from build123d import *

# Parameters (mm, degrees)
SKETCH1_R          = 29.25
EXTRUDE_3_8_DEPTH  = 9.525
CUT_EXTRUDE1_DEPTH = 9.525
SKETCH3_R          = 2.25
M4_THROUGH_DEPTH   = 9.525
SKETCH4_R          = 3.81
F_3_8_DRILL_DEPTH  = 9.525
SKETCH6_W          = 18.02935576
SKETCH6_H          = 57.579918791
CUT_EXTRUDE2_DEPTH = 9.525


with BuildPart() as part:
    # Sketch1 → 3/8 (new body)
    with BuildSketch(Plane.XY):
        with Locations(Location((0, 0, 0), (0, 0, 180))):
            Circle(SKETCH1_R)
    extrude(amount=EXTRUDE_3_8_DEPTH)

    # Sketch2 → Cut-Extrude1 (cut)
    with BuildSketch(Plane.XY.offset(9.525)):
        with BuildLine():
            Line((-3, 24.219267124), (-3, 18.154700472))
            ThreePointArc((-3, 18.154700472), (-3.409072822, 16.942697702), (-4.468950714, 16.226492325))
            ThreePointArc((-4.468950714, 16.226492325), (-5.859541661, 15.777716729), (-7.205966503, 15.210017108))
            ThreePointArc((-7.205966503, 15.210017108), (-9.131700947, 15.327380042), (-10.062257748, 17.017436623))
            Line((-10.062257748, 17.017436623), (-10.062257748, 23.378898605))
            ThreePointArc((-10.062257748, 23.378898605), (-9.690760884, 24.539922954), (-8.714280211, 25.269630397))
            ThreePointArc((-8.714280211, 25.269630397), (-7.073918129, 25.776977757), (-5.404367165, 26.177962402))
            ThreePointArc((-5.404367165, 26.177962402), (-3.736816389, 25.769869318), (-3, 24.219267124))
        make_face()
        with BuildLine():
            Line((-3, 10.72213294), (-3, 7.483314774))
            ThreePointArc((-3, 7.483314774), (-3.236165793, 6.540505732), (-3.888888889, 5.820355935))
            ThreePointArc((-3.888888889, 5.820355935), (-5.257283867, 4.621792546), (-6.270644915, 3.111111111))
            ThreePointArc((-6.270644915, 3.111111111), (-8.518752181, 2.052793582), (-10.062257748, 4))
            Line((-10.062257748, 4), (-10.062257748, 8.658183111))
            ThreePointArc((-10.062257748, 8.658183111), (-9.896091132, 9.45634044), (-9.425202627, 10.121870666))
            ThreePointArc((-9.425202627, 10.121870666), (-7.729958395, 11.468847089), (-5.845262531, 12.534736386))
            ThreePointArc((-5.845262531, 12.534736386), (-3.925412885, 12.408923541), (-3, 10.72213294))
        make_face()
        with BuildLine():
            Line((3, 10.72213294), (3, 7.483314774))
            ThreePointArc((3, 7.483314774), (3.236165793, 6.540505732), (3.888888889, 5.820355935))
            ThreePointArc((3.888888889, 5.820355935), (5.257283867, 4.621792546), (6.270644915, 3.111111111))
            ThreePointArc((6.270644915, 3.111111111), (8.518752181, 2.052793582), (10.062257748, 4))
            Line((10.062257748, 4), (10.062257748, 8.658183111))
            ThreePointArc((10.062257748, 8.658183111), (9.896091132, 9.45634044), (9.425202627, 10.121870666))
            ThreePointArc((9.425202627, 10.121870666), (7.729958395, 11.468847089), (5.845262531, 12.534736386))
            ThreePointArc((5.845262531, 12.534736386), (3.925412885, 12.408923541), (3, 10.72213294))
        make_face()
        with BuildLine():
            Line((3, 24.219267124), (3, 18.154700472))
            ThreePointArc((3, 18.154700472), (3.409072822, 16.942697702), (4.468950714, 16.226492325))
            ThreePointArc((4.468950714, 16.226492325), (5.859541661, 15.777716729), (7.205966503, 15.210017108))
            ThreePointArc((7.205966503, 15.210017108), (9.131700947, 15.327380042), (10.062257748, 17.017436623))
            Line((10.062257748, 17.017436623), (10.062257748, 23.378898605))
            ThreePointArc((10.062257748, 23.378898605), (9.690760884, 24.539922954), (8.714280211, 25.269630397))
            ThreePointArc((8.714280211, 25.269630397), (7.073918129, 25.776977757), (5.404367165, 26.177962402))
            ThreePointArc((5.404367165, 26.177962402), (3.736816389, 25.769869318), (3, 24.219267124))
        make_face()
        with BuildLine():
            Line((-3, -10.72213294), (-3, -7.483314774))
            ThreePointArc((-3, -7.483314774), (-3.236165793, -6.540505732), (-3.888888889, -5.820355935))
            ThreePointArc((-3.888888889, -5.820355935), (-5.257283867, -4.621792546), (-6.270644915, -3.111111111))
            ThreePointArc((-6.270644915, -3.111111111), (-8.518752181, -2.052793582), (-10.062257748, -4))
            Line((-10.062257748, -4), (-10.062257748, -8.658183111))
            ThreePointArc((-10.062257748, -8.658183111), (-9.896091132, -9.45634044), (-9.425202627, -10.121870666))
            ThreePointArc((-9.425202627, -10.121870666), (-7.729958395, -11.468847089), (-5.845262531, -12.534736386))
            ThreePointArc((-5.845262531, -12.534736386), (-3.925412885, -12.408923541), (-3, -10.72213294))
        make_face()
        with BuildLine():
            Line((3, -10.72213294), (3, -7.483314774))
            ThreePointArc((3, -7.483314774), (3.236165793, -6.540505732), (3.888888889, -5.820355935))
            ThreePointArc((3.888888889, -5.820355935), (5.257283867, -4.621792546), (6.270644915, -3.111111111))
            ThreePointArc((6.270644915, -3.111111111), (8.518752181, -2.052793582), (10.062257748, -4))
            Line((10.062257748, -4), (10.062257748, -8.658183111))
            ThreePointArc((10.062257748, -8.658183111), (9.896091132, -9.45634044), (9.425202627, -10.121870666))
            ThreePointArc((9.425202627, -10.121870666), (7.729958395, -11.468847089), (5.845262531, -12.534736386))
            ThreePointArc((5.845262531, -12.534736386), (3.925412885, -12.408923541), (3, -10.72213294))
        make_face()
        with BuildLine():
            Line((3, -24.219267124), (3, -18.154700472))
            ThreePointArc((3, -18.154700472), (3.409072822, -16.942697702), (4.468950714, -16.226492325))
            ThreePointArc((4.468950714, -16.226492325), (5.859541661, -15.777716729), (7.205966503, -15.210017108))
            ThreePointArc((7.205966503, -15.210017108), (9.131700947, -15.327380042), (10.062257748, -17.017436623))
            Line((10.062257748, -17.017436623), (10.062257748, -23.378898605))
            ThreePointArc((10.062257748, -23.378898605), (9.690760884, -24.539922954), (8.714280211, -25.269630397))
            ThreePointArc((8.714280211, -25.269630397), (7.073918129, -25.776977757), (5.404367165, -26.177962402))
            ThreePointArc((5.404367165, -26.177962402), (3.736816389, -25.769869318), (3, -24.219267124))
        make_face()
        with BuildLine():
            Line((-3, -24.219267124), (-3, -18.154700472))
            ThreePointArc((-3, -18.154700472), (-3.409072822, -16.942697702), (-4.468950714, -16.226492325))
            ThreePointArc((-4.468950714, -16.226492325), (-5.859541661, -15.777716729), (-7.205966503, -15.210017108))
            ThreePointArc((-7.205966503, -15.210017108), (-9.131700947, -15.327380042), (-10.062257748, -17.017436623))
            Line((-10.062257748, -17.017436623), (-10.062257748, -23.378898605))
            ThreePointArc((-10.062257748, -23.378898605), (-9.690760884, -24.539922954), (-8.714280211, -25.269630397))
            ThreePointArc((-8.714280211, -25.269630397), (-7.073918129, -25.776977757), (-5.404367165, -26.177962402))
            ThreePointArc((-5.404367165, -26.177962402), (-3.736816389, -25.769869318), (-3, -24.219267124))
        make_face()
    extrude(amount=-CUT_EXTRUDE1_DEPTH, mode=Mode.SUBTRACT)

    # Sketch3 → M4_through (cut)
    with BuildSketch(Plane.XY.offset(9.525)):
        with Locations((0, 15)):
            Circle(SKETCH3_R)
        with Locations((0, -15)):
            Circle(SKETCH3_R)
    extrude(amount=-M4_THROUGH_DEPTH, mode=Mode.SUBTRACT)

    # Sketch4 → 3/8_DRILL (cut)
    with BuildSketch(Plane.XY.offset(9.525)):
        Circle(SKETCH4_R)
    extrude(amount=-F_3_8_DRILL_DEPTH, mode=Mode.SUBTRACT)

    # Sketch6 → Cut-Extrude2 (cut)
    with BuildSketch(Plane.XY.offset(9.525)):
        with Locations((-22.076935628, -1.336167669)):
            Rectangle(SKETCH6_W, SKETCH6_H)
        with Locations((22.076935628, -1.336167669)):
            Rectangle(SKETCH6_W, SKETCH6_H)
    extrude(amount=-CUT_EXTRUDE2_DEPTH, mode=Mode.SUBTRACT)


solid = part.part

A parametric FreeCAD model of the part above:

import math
import FreeCAD as App
import Part
import Sketcher
from FreeCAD import Vector
Q = App.Units.Quantity


def add_polygon(sketch, points):
    """Adds a closed chain of lines whose ends are joined by coincident constraints."""
    first, n = sketch.GeometryCount, len(points)
    for a, b in zip(points, points[1:] + points[:1]):
        sketch.addGeometry(Part.LineSegment(App.Vector(*a, 0), App.Vector(*b, 0)), False)
    for i in range(n):
        sketch.addConstraint(Sketcher.Constraint("Coincident", first + i, 2, first + (i + 1) % n, 1))

doc = App.newDocument("Part")
body = doc.addObject("PartDesign::Body", "Body")

# Sketch on XY plane
sketch1 = doc.addObject("Sketcher::SketchObject", "Sketch")
body.addObject(sketch1)
sketch1.AttachmentSupport = (doc.XY_Plane, [""])
sketch1.MapMode = "FlatFace"
sketch1.addGeometry(Part.Circle(Vector(0, 0, 0), Vector(0, 0, 1), 29), False)
sketch1.addConstraint(Sketcher.Constraint("Coincident", 0, 3, -1, 1))
sketch1.addConstraint(Sketcher.Constraint("Diameter", 0, Q("58.5 mm")))
pad1 = doc.addObject("PartDesign::Pad", "Pad")
body.addObject(pad1)
pad1.Profile = sketch1
pad1.Length = 9.525

# Sketch on XY plane
sketch2 = doc.addObject("Sketcher::SketchObject", "Sketch001")
body.addObject(sketch2)
sketch2.AttachmentSupport = (doc.XY_Plane, [""])
sketch2.MapMode = "FlatFace"
sketch2.AttachmentOffset = App.Placement(Vector(0, 0, 9.525), App.Rotation())
sketch2.addGeometry(Part.LineSegment(Vector(-3, 18.2, 0), Vector(-3, 24.2, 0)), False)
sketch2.addGeometry(Part.ArcOfCircle(Part.Circle(Vector(-5, 24.2, 0), Vector(0, 0, 1), 2), math.radians(0), math.radians(102)), False)
sketch2.addGeometry(Part.ArcOfCircle(Part.Circle(Vector(0, 0, 0), Vector(0, 0, 1), 26.7), math.radians(101.66), math.radians(109.03)), False)
sketch2.addGeometry(Part.ArcOfCircle(Part.Circle(Vector(-8.1, 23.4, 0), Vector(0, 0, 1), 2), math.radians(109), math.radians(180)), False)
sketch2.addGeometry(Part.LineSegment(Vector(-10.1, 23.4, 0), Vector(-10.1, 17, 0)), False)
sketch2.addGeometry(Part.ArcOfCircle(Part.Circle(Vector(-8.1, 17, 0), Vector(0, 0, 1), 2), math.radians(180), math.radians(295)), False)
sketch2.addGeometry(Part.ArcOfCircle(Part.Circle(Vector(0, 0, 0), Vector(0, 0, 1), 16.8), math.radians(105.4), math.radians(115.35)), False)
sketch2.addGeometry(Part.ArcOfCircle(Part.Circle(Vector(-5, 18.2, 0), Vector(0, 0, 1), 2), math.radians(-75), math.radians(0)), False)
sketch2.addGeometry(Part.LineSegment(Vector(-3, 7.5, 0), Vector(-3, 10.7, 0)), False)
sketch2.addGeometry(Part.ArcOfCircle(Part.Circle(Vector(-5, 10.7, 0), Vector(0, 0, 1), 2), math.radians(0), math.radians(115)), False)
sketch2.addGeometry(Part.ArcOfCircle(Part.Circle(Vector(0, 0, 0), Vector(0, 0, 1), 13.8), math.radians(115), math.radians(132.96)), False)
sketch2.addGeometry(Part.ArcOfCircle(Part.Circle(Vector(-8.1, 8.7, 0), Vector(0, 0, 1), 2), math.radians(133), math.radians(180)), False)
sketch2.addGeometry(Part.LineSegment(Vector(-10.1, 8.7, 0), Vector(-10.1, 4, 0)), False)
sketch2.addGeometry(Part.ArcOfCircle(Part.Circle(Vector(-8.1, 4, 0), Vector(0, 0, 1), 2), math.radians(180), math.radians(334)), False)
sketch2.addGeometry(Part.ArcOfCircle(Part.Circle(Vector(0, 0, 0), Vector(0, 0, 1), 7), math.radians(124), math.radians(154)), False)
sketch2.addGeometry(Part.ArcOfCircle(Part.Circle(Vector(-5, 7.5, 0), Vector(0, 0, 1), 2), math.radians(-56), math.radians(0)), False)
sketch2.addGeometry(Part.LineSegment(Vector(3, 10.7, 0), Vector(3, 7.5, 0)), False)
sketch2.addGeometry(Part.ArcOfCircle(Part.Circle(Vector(5, 7.5, 0), Vector(0, 0, 1), 2), math.radians(-180), math.radians(-124)), False)
sketch2.addGeometry(Part.ArcOfCircle(Part.Circle(Vector(0, 0, 0), Vector(0, 0, 1), 7), math.radians(26), math.radians(56)), False)
sketch2.addGeometry(Part.ArcOfCircle(Part.Circle(Vector(8.1, 4, 0), Vector(0, 0, 1), 2), math.radians(-154), math.radians(0)), False)
sketch2.addGeometry(Part.LineSegment(Vector(10.1, 4, 0), Vector(10.1, 8.7, 0)), False)
sketch2.addGeometry(Part.ArcOfCircle(Part.Circle(Vector(8.1, 8.7, 0), Vector(0, 0, 1), 2), math.radians(0), math.radians(47)), False)
sketch2.addGeometry(Part.ArcOfCircle(Part.Circle(Vector(0, 0, 0), Vector(0, 0, 1), 13.8), math.radians(47.04), math.radians(65)), False)
sketch2.addGeometry(Part.ArcOfCircle(Part.Circle(Vector(5, 10.7, 0), Vector(0, 0, 1), 2), math.radians(65), math.radians(180)), False)
sketch2.addGeometry(Part.LineSegment(Vector(3, 24.2, 0), Vector(3, 18.2, 0)), False)
sketch2.addGeometry(Part.ArcOfCircle(Part.Circle(Vector(5, 18.2, 0), Vector(0, 0, 1), 2), math.radians(180), math.radians(255)), False)
sketch2.addGeometry(Part.ArcOfCircle(Part.Circle(Vector(0, 0, 0), Vector(0, 0, 1), 16.8), math.radians(64.65), math.radians(74.6)), False)
sketch2.addGeometry(Part.ArcOfCircle(Part.Circle(Vector(8.1, 17, 0), Vector(0, 0, 1), 2), math.radians(-115), math.radians(0)), False)
sketch2.addGeometry(Part.LineSegment(Vector(10.1, 17, 0), Vector(10.1, 23.4, 0)), False)
sketch2.addGeometry(Part.ArcOfCircle(Part.Circle(Vector(8.1, 23.4, 0), Vector(0, 0, 1), 2), math.radians(0), math.radians(71)), False)
sketch2.addGeometry(Part.ArcOfCircle(Part.Circle(Vector(0, 0, 0), Vector(0, 0, 1), 26.7), math.radians(70.97), math.radians(78.34)), False)
sketch2.addGeometry(Part.ArcOfCircle(Part.Circle(Vector(5, 24.2, 0), Vector(0, 0, 1), 2), math.radians(78), math.radians(180)), False)
sketch2.addGeometry(Part.LineSegment(Vector(-3, -10.7, 0), Vector(-3, -7.5, 0)), False)
sketch2.addGeometry(Part.ArcOfCircle(Part.Circle(Vector(-5, -7.5, 0), Vector(0, 0, 1), 2), math.radians(0), math.radians(56)), False)
sketch2.addGeometry(Part.ArcOfCircle(Part.Circle(Vector(0, 0, 0), Vector(0, 0, 1), 7), math.radians(-154), math.radians(-124)), False)
sketch2.addGeometry(Part.ArcOfCircle(Part.Circle(Vector(-8.1, -4, 0), Vector(0, 0, 1), 2), math.radians(26), math.radians(180)), False)
sketch2.addGeometry(Part.LineSegment(Vector(-10.1, -4, 0), Vector(-10.1, -8.7, 0)), False)
sketch2.addGeometry(Part.ArcOfCircle(Part.Circle(Vector(-8.1, -8.7, 0), Vector(0, 0, 1), 2), math.radians(180), math.radians(227)), False)
sketch2.addGeometry(Part.ArcOfCircle(Part.Circle(Vector(0, 0, 0), Vector(0, 0, 1), 13.8), math.radians(-132.96), math.radians(-115)), False)
sketch2.addGeometry(Part.ArcOfCircle(Part.Circle(Vector(-5, -10.7, 0), Vector(0, 0, 1), 2), math.radians(-115), math.radians(0)), False)
sketch2.addGeometry(Part.LineSegment(Vector(3, -7.5, 0), Vector(3, -10.7, 0)), False)
sketch2.addGeometry(Part.ArcOfCircle(Part.Circle(Vector(5, -10.7, 0), Vector(0, 0, 1), 2), math.radians(180), math.radians(295)), False)
sketch2.addGeometry(Part.ArcOfCircle(Part.Circle(Vector(0, 0, 0), Vector(0, 0, 1), 13.8), math.radians(-65), math.radians(-47.04)), False)
sketch2.addGeometry(Part.ArcOfCircle(Part.Circle(Vector(8.1, -8.7, 0), Vector(0, 0, 1), 2), math.radians(-47), math.radians(0)), False)
sketch2.addGeometry(Part.LineSegment(Vector(10.1, -8.7, 0), Vector(10.1, -4, 0)), False)
sketch2.addGeometry(Part.ArcOfCircle(Part.Circle(Vector(8.1, -4, 0), Vector(0, 0, 1), 2), math.radians(0), math.radians(154)), False)
sketch2.addGeometry(Part.ArcOfCircle(Part.Circle(Vector(0, 0, 0), Vector(0, 0, 1), 7), math.radians(-56), math.radians(-26)), False)
sketch2.addGeometry(Part.ArcOfCircle(Part.Circle(Vector(5, -7.5, 0), Vector(0, 0, 1), 2), math.radians(124), math.radians(180)), False)
sketch2.addGeometry(Part.LineSegment(Vector(3, -18.2, 0), Vector(3, -24.2, 0)), False)
sketch2.addGeometry(Part.ArcOfCircle(Part.Circle(Vector(5, -24.2, 0), Vector(0, 0, 1), 2), math.radians(180), math.radians(282)), False)
sketch2.addGeometry(Part.ArcOfCircle(Part.Circle(Vector(0, 0, 0), Vector(0, 0, 1), 26.7), math.radians(-78.34), math.radians(-70.97)), False)
sketch2.addGeometry(Part.ArcOfCircle(Part.Circle(Vector(8.1, -23.4, 0), Vector(0, 0, 1), 2), math.radians(-71), math.radians(0)), False)
sketch2.addGeometry(Part.LineSegment(Vector(10.1, -23.4, 0), Vector(10.1, -17, 0)), False)
sketch2.addGeometry(Part.ArcOfCircle(Part.Circle(Vector(8.1, -17, 0), Vector(0, 0, 1), 2), math.radians(0), math.radians(115)), False)
sketch2.addGeometry(Part.ArcOfCircle(Part.Circle(Vector(0, 0, 0), Vector(0, 0, 1), 16.8), math.radians(-74.6), math.radians(-64.65)), False)
sketch2.addGeometry(Part.ArcOfCircle(Part.Circle(Vector(5, -18.2, 0), Vector(0, 0, 1), 2), math.radians(105), math.radians(180)), False)
sketch2.addGeometry(Part.LineSegment(Vector(-3, -24.2, 0), Vector(-3, -18.2, 0)), False)
sketch2.addGeometry(Part.ArcOfCircle(Part.Circle(Vector(-5, -18.2, 0), Vector(0, 0, 1), 2), math.radians(0), math.radians(75)), False)
sketch2.addGeometry(Part.ArcOfCircle(Part.Circle(Vector(0, 0, 0), Vector(0, 0, 1), 16.8), math.radians(-115.35), math.radians(-105.4)), False)
sketch2.addGeometry(Part.ArcOfCircle(Part.Circle(Vector(-8.1, -17, 0), Vector(0, 0, 1), 2), math.radians(65), math.radians(180)), False)
sketch2.addGeometry(Part.LineSegment(Vector(-10.1, -17, 0), Vector(-10.1, -23.4, 0)), False)
sketch2.addGeometry(Part.ArcOfCircle(Part.Circle(Vector(-8.1, -23.4, 0), Vector(0, 0, 1), 2), math.radians(180), math.radians(251)), False)
sketch2.addGeometry(Part.ArcOfCircle(Part.Circle(Vector(0, 0, 0), Vector(0, 0, 1), 26.7), math.radians(-109.03), math.radians(-101.66)), False)
sketch2.addGeometry(Part.ArcOfCircle(Part.Circle(Vector(-5, -24.2, 0), Vector(0, 0, 1), 2), math.radians(-102), math.radians(0)), False)
sketch2.addConstraint(Sketcher.Constraint("Tangent", 0, 2, 1, 1))
sketch2.addConstraint(Sketcher.Constraint("Tangent", 1, 2, 2, 1))
sketch2.addConstraint(Sketcher.Constraint("Tangent", 2, 2, 3, 1))
sketch2.addConstraint(Sketcher.Constraint("Tangent", 3, 2, 4, 1))
sketch2.addConstraint(Sketcher.Constraint("Tangent", 4, 2, 5, 1))
sketch2.addConstraint(Sketcher.Constraint("Tangent", 5, 2, 6, 2))
sketch2.addConstraint(Sketcher.Constraint("Tangent", 6, 1, 7, 1))
sketch2.addConstraint(Sketcher.Constraint("Tangent", 7, 2, 0, 1))
sketch2.addConstraint(Sketcher.Constraint("Tangent", 8, 2, 9, 1))
sketch2.addConstraint(Sketcher.Constraint("Tangent", 9, 2, 10, 1))
sketch2.addConstraint(Sketcher.Constraint("Tangent", 10, 2, 11, 1))
sketch2.addConstraint(Sketcher.Constraint("Tangent", 11, 2, 12, 1))
sketch2.addConstraint(Sketcher.Constraint("Tangent", 12, 2, 13, 1))
sketch2.addConstraint(Sketcher.Constraint("Tangent", 13, 2, 14, 2))
sketch2.addConstraint(Sketcher.Constraint("Tangent", 14, 1, 15, 1))
sketch2.addConstraint(Sketcher.Constraint("Tangent", 15, 2, 8, 1))
sketch2.addConstraint(Sketcher.Constraint("Tangent", 16, 2, 17, 1))
sketch2.addConstraint(Sketcher.Constraint("Tangent", 17, 2, 18, 2))
sketch2.addConstraint(Sketcher.Constraint("Tangent", 18, 1, 19, 1))
sketch2.addConstraint(Sketcher.Constraint("Tangent", 19, 2, 20, 1))
sketch2.addConstraint(Sketcher.Constraint("Tangent", 20, 2, 21, 1))
sketch2.addConstraint(Sketcher.Constraint("Tangent", 21, 2, 22, 1))
sketch2.addConstraint(Sketcher.Constraint("Tangent", 22, 2, 23, 1))
sketch2.addConstraint(Sketcher.Constraint("Tangent", 23, 2, 16, 1))
sketch2.addConstraint(Sketcher.Constraint("Tangent", 24, 2, 25, 1))
sketch2.addConstraint(Sketcher.Constraint("Tangent", 25, 2, 26, 2))
sketch2.addConstraint(Sketcher.Constraint("Tangent", 26, 1, 27, 1))
sketch2.addConstraint(Sketcher.Constraint("Tangent", 27, 2, 28, 1))
sketch2.addConstraint(Sketcher.Constraint("Tangent", 28, 2, 29, 1))
sketch2.addConstraint(Sketcher.Constraint("Tangent", 29, 2, 30, 1))
sketch2.addConstraint(Sketcher.Constraint("Tangent", 30, 2, 31, 1))
sketch2.addConstraint(Sketcher.Constraint("Tangent", 31, 2, 24, 1))
sketch2.addConstraint(Sketcher.Constraint("Tangent", 32, 2, 33, 1))
sketch2.addConstraint(Sketcher.Constraint("Tangent", 33, 2, 34, 2))
sketch2.addConstraint(Sketcher.Constraint("Tangent", 34, 1, 35, 1))
sketch2.addConstraint(Sketcher.Constraint("Tangent", 35, 2, 36, 1))
sketch2.addConstraint(Sketcher.Constraint("Tangent", 36, 2, 37, 1))
sketch2.addConstraint(Sketcher.Constraint("Tangent", 37, 2, 38, 1))
sketch2.addConstraint(Sketcher.Constraint("Tangent", 38, 2, 39, 1))
sketch2.addConstraint(Sketcher.Constraint("Tangent", 39, 2, 32, 1))
sketch2.addConstraint(Sketcher.Constraint("Tangent", 40, 2, 41, 1))
sketch2.addConstraint(Sketcher.Constraint("Tangent", 41, 2, 42, 1))
sketch2.addConstraint(Sketcher.Constraint("Tangent", 42, 2, 43, 1))
sketch2.addConstraint(Sketcher.Constraint("Tangent", 43, 2, 44, 1))
sketch2.addConstraint(Sketcher.Constraint("Tangent", 44, 2, 45, 1))
sketch2.addConstraint(Sketcher.Constraint("Tangent", 45, 2, 46, 2))
sketch2.addConstraint(Sketcher.Constraint("Tangent", 46, 1, 47, 1))
sketch2.addConstraint(Sketcher.Constraint("Tangent", 47, 2, 40, 1))
sketch2.addConstraint(Sketcher.Constraint("Tangent", 48, 2, 49, 1))
sketch2.addConstraint(Sketcher.Constraint("Tangent", 49, 2, 50, 1))
sketch2.addConstraint(Sketcher.Constraint("Tangent", 50, 2, 51, 1))
sketch2.addConstraint(Sketcher.Constraint("Tangent", 51, 2, 52, 1))
sketch2.addConstraint(Sketcher.Constraint("Tangent", 52, 2, 53, 1))
sketch2.addConstraint(Sketcher.Constraint("Tangent", 53, 2, 54, 2))
sketch2.addConstraint(Sketcher.Constraint("Tangent", 54, 1, 55, 1))
sketch2.addConstraint(Sketcher.Constraint("Tangent", 55, 2, 48, 1))
sketch2.addConstraint(Sketcher.Constraint("Tangent", 56, 2, 57, 1))
sketch2.addConstraint(Sketcher.Constraint("Tangent", 57, 2, 58, 2))
sketch2.addConstraint(Sketcher.Constraint("Tangent", 58, 1, 59, 1))
sketch2.addConstraint(Sketcher.Constraint("Tangent", 59, 2, 60, 1))
sketch2.addConstraint(Sketcher.Constraint("Tangent", 60, 2, 61, 1))
sketch2.addConstraint(Sketcher.Constraint("Tangent", 61, 2, 62, 1))
sketch2.addConstraint(Sketcher.Constraint("Tangent", 62, 2, 63, 1))
sketch2.addConstraint(Sketcher.Constraint("Tangent", 63, 2, 56, 1))
sketch2.addConstraint(Sketcher.Constraint("Vertical", 0))
sketch2.addConstraint(Sketcher.Constraint("Vertical", 4))
sketch2.addConstraint(Sketcher.Constraint("Vertical", 8))
sketch2.addConstraint(Sketcher.Constraint("Vertical", 12))
sketch2.addConstraint(Sketcher.Constraint("Vertical", 16))
sketch2.addConstraint(Sketcher.Constraint("Vertical", 20))
sketch2.addConstraint(Sketcher.Constraint("Vertical", 24))
sketch2.addConstraint(Sketcher.Constraint("Vertical", 28))
sketch2.addConstraint(Sketcher.Constraint("Vertical", 32))
sketch2.addConstraint(Sketcher.Constraint("Vertical", 36))
sketch2.addConstraint(Sketcher.Constraint("Vertical", 40))
sketch2.addConstraint(Sketcher.Constraint("Vertical", 44))
sketch2.addConstraint(Sketcher.Constraint("Vertical", 48))
sketch2.addConstraint(Sketcher.Constraint("Vertical", 52))
sketch2.addConstraint(Sketcher.Constraint("Vertical", 56))
sketch2.addConstraint(Sketcher.Constraint("Vertical", 60))
sketch2.addConstraint(Sketcher.Constraint("Coincident", 2, 3, -1, 1))
sketch2.addConstraint(Sketcher.Constraint("Coincident", 6, 3, -1, 1))
sketch2.addConstraint(Sketcher.Constraint("Coincident", 10, 3, -1, 1))
sketch2.addConstraint(Sketcher.Constraint("Coincident", 14, 3, -1, 1))
sketch2.addConstraint(Sketcher.Constraint("Coincident", 18, 3, -1, 1))
sketch2.addConstraint(Sketcher.Constraint("Coincident", 22, 3, -1, 1))
sketch2.addConstraint(Sketcher.Constraint("Coincident", 26, 3, -1, 1))
sketch2.addConstraint(Sketcher.Constraint("Coincident", 30, 3, -1, 1))
sketch2.addConstraint(Sketcher.Constraint("Coincident", 34, 3, -1, 1))
sketch2.addConstraint(Sketcher.Constraint("Coincident", 38, 3, -1, 1))
sketch2.addConstraint(Sketcher.Constraint("Coincident", 42, 3, -1, 1))
sketch2.addConstraint(Sketcher.Constraint("Coincident", 46, 3, -1, 1))
sketch2.addConstraint(Sketcher.Constraint("Coincident", 50, 3, -1, 1))
sketch2.addConstraint(Sketcher.Constraint("Coincident", 54, 3, -1, 1))
sketch2.addConstraint(Sketcher.Constraint("Coincident", 58, 3, -1, 1))
sketch2.addConstraint(Sketcher.Constraint("Coincident", 62, 3, -1, 1))
sketch2.addConstraint(Sketcher.Constraint("Equal", 1, 3))
sketch2.addConstraint(Sketcher.Constraint("Equal", 3, 5))
sketch2.addConstraint(Sketcher.Constraint("Equal", 5, 7))
sketch2.addConstraint(Sketcher.Constraint("Equal", 7, 9))
sketch2.addConstraint(Sketcher.Constraint("Equal", 9, 11))
sketch2.addConstraint(Sketcher.Constraint("Equal", 11, 13))
sketch2.addConstraint(Sketcher.Constraint("Equal", 13, 15))
sketch2.addConstraint(Sketcher.Constraint("Equal", 15, 17))
sketch2.addConstraint(Sketcher.Constraint("Equal", 14, 18))
sketch2.addConstraint(Sketcher.Constraint("Equal", 17, 19))
sketch2.addConstraint(Sketcher.Constraint("Equal", 19, 21))
sketch2.addConstraint(Sketcher.Constraint("Equal", 10, 22))
sketch2.addConstraint(Sketcher.Constraint("Equal", 21, 23))
sketch2.addConstraint(Sketcher.Constraint("Equal", 23, 25))
sketch2.addConstraint(Sketcher.Constraint("Equal", 6, 26))
sketch2.addConstraint(Sketcher.Constraint("Equal", 25, 27))
sketch2.addConstraint(Sketcher.Constraint("Equal", 27, 29))
sketch2.addConstraint(Sketcher.Constraint("Equal", 2, 30))
sketch2.addConstraint(Sketcher.Constraint("Equal", 29, 31))
sketch2.addConstraint(Sketcher.Constraint("Equal", 31, 33))
sketch2.addConstraint(Sketcher.Constraint("Equal", 18, 34))
sketch2.addConstraint(Sketcher.Constraint("Equal", 33, 35))
sketch2.addConstraint(Sketcher.Constraint("Equal", 35, 37))
sketch2.addConstraint(Sketcher.Constraint("Equal", 22, 38))
sketch2.addConstraint(Sketcher.Constraint("Equal", 37, 39))
sketch2.addConstraint(Sketcher.Constraint("Equal", 39, 41))
sketch2.addConstraint(Sketcher.Constraint("Equal", 38, 42))
sketch2.addConstraint(Sketcher.Constraint("Equal", 41, 43))
sketch2.addConstraint(Sketcher.Constraint("Equal", 43, 45))
sketch2.addConstraint(Sketcher.Constraint("Equal", 34, 46))
sketch2.addConstraint(Sketcher.Constraint("Equal", 45, 47))
sketch2.addConstraint(Sketcher.Constraint("Equal", 47, 49))
sketch2.addConstraint(Sketcher.Constraint("Equal", 30, 50))
sketch2.addConstraint(Sketcher.Constraint("Equal", 49, 51))
sketch2.addConstraint(Sketcher.Constraint("Equal", 51, 53))
sketch2.addConstraint(Sketcher.Constraint("Equal", 26, 54))
sketch2.addConstraint(Sketcher.Constraint("Equal", 53, 55))
sketch2.addConstraint(Sketcher.Constraint("Equal", 55, 57))
sketch2.addConstraint(Sketcher.Constraint("Equal", 54, 58))
sketch2.addConstraint(Sketcher.Constraint("Equal", 57, 59))
sketch2.addConstraint(Sketcher.Constraint("Equal", 59, 61))
sketch2.addConstraint(Sketcher.Constraint("Equal", 50, 62))
sketch2.addConstraint(Sketcher.Constraint("Equal", 61, 63))
sketch2.addConstraint(Sketcher.Constraint("Horizontal", 15, 3, 17, 3))
sketch2.addConstraint(Sketcher.Constraint("Horizontal", 13, 3, 19, 3))
sketch2.addConstraint(Sketcher.Constraint("Horizontal", 7, 3, 25, 3))
sketch2.addConstraint(Sketcher.Constraint("Horizontal", 5, 3, 27, 3))
sketch2.addConstraint(Sketcher.Constraint("Horizontal", 39, 3, 41, 3))
sketch2.addConstraint(Sketcher.Constraint("Horizontal", 37, 3, 43, 3))
sketch2.addConstraint(Sketcher.Constraint("Horizontal", 55, 3, 57, 3))
sketch2.addConstraint(Sketcher.Constraint("Horizontal", 53, 3, 59, 3))
sketch2.addConstraint(Sketcher.Constraint("Vertical", 7, 3, 9, 3))
sketch2.addConstraint(Sketcher.Constraint("Vertical", 5, 3, 11, 3))
sketch2.addConstraint(Sketcher.Constraint("Vertical", 15, 3, 33, 3))
sketch2.addConstraint(Sketcher.Constraint("Vertical", 13, 3, 35, 3))
sketch2.addConstraint(Sketcher.Constraint("Vertical", 47, 3, 49, 3))
sketch2.addConstraint(Sketcher.Constraint("Vertical", 45, 3, 51, 3))
sketch2.addConstraint(Sketcher.Constraint("Radius", 1, Q("2 mm")))
sketch2.addConstraint(Sketcher.Constraint("Radius", 14, Q("7 mm")))
sketch2.addConstraint(Sketcher.Constraint("Radius", 2, Q("26.73 mm")))
sketch2.addConstraint(Sketcher.Constraint("DistanceX", 1, 3, -1, 1, Q("5 mm")))
sketch2.addConstraint(Sketcher.Constraint("DistanceY", -1, 1, 13, 3, Q("4 mm")))
sketch2.addConstraint(Sketcher.Constraint("Radius", 6, Q("16.830644 mm")))
sketch2.addConstraint(Sketcher.Constraint("Radius", 10, Q("13.830644 mm")))
pocket1 = doc.addObject("PartDesign::Pocket", "Pocket")
body.addObject(pocket1)
pocket1.Profile = sketch2
pocket1.Length = 9.525

# Sketch on XY plane
sketch3 = doc.addObject("Sketcher::SketchObject", "Sketch002")
body.addObject(sketch3)
sketch3.AttachmentSupport = (doc.XY_Plane, [""])
sketch3.MapMode = "FlatFace"
sketch3.AttachmentOffset = App.Placement(Vector(0, 0, 9.525), App.Rotation())
sketch3.addGeometry(Part.Circle(Vector(0, 15, 0), Vector(0, 0, 1), 2.2), False)
sketch3.addGeometry(Part.Circle(Vector(0, -15, 0), Vector(0, 0, 1), 2.2), False)
sketch3.addConstraint(Sketcher.Constraint("Equal", 0, 1))
sketch3.addConstraint(Sketcher.Constraint("Symmetric", 0, 3, 1, 3, -1, 1))
sketch3.addConstraint(Sketcher.Constraint("PointOnObject", 0, 3, -2))
sketch3.addConstraint(Sketcher.Constraint("Diameter", 0, Q("4.5 mm")))
sketch3.addConstraint(Sketcher.Constraint("DistanceY", -1, 1, 0, 3, Q("15 mm")))
pocket2 = doc.addObject("PartDesign::Pocket", "Pocket001")
body.addObject(pocket2)
pocket2.Profile = sketch3
pocket2.Length = 9.525

# Sketch on XY plane
sketch4 = doc.addObject("Sketcher::SketchObject", "Sketch003")
body.addObject(sketch4)
sketch4.AttachmentSupport = (doc.XY_Plane, [""])
sketch4.MapMode = "FlatFace"
sketch4.AttachmentOffset = App.Placement(Vector(0, 0, 9.525), App.Rotation())
sketch4.addGeometry(Part.Circle(Vector(0, 0, 0), Vector(0, 0, 1), 3.8), False)
sketch4.addConstraint(Sketcher.Constraint("Coincident", 0, 3, -1, 1))
sketch4.addConstraint(Sketcher.Constraint("Diameter", 0, Q("7.62 mm")))
pocket3 = doc.addObject("PartDesign::Pocket", "Pocket002")
body.addObject(pocket3)
pocket3.Profile = sketch4
pocket3.Length = 9.525

# Sketch on XY plane
sketch5 = doc.addObject("Sketcher::SketchObject", "Sketch004")
body.addObject(sketch5)
sketch5.AttachmentSupport = (doc.XY_Plane, [""])
sketch5.MapMode = "FlatFace"
sketch5.AttachmentOffset = App.Placement(Vector(0, 0, 9.525), App.Rotation())
add_polygon(sketch5, [(-31, 27), (-31, -30), (-13, -30), (-13, 27)])  # lines 0-3
add_polygon(sketch5, [(13, 27), (13, -30), (31, -30), (31, 27)])  # lines 4-7
sketch5.addConstraint(Sketcher.Constraint("Vertical", 0))
sketch5.addConstraint(Sketcher.Constraint("Horizontal", 1))
sketch5.addConstraint(Sketcher.Constraint("Vertical", 2))
sketch5.addConstraint(Sketcher.Constraint("Horizontal", 3))
sketch5.addConstraint(Sketcher.Constraint("Vertical", 4))
sketch5.addConstraint(Sketcher.Constraint("Horizontal", 5))
sketch5.addConstraint(Sketcher.Constraint("Vertical", 6))
sketch5.addConstraint(Sketcher.Constraint("Horizontal", 7))
sketch5.addConstraint(Sketcher.Constraint("Symmetric", 1, 2, 4, 2, -2))
sketch5.addConstraint(Sketcher.Constraint("Symmetric", 3, 2, 6, 2, -2))
sketch5.addConstraint(Sketcher.Constraint("DistanceY", 0, 2, 0, 1, Q("57.579919 mm")))
sketch5.addConstraint(Sketcher.Constraint("DistanceX", 1, 1, 1, 2, Q("18.029356 mm")))
sketch5.addConstraint(Sketcher.Constraint("DistanceY", -1, 1, 2, 2, Q("27.453792 mm")))
sketch5.addConstraint(Sketcher.Constraint("DistanceX", 0, 2, 4, 2, Q("44.153871 mm")))
pocket4 = doc.addObject("PartDesign::Pocket", "Pocket003")
body.addObject(pocket4)
pocket4.Profile = sketch5
pocket4.Length = 9.525

doc.recompute()
